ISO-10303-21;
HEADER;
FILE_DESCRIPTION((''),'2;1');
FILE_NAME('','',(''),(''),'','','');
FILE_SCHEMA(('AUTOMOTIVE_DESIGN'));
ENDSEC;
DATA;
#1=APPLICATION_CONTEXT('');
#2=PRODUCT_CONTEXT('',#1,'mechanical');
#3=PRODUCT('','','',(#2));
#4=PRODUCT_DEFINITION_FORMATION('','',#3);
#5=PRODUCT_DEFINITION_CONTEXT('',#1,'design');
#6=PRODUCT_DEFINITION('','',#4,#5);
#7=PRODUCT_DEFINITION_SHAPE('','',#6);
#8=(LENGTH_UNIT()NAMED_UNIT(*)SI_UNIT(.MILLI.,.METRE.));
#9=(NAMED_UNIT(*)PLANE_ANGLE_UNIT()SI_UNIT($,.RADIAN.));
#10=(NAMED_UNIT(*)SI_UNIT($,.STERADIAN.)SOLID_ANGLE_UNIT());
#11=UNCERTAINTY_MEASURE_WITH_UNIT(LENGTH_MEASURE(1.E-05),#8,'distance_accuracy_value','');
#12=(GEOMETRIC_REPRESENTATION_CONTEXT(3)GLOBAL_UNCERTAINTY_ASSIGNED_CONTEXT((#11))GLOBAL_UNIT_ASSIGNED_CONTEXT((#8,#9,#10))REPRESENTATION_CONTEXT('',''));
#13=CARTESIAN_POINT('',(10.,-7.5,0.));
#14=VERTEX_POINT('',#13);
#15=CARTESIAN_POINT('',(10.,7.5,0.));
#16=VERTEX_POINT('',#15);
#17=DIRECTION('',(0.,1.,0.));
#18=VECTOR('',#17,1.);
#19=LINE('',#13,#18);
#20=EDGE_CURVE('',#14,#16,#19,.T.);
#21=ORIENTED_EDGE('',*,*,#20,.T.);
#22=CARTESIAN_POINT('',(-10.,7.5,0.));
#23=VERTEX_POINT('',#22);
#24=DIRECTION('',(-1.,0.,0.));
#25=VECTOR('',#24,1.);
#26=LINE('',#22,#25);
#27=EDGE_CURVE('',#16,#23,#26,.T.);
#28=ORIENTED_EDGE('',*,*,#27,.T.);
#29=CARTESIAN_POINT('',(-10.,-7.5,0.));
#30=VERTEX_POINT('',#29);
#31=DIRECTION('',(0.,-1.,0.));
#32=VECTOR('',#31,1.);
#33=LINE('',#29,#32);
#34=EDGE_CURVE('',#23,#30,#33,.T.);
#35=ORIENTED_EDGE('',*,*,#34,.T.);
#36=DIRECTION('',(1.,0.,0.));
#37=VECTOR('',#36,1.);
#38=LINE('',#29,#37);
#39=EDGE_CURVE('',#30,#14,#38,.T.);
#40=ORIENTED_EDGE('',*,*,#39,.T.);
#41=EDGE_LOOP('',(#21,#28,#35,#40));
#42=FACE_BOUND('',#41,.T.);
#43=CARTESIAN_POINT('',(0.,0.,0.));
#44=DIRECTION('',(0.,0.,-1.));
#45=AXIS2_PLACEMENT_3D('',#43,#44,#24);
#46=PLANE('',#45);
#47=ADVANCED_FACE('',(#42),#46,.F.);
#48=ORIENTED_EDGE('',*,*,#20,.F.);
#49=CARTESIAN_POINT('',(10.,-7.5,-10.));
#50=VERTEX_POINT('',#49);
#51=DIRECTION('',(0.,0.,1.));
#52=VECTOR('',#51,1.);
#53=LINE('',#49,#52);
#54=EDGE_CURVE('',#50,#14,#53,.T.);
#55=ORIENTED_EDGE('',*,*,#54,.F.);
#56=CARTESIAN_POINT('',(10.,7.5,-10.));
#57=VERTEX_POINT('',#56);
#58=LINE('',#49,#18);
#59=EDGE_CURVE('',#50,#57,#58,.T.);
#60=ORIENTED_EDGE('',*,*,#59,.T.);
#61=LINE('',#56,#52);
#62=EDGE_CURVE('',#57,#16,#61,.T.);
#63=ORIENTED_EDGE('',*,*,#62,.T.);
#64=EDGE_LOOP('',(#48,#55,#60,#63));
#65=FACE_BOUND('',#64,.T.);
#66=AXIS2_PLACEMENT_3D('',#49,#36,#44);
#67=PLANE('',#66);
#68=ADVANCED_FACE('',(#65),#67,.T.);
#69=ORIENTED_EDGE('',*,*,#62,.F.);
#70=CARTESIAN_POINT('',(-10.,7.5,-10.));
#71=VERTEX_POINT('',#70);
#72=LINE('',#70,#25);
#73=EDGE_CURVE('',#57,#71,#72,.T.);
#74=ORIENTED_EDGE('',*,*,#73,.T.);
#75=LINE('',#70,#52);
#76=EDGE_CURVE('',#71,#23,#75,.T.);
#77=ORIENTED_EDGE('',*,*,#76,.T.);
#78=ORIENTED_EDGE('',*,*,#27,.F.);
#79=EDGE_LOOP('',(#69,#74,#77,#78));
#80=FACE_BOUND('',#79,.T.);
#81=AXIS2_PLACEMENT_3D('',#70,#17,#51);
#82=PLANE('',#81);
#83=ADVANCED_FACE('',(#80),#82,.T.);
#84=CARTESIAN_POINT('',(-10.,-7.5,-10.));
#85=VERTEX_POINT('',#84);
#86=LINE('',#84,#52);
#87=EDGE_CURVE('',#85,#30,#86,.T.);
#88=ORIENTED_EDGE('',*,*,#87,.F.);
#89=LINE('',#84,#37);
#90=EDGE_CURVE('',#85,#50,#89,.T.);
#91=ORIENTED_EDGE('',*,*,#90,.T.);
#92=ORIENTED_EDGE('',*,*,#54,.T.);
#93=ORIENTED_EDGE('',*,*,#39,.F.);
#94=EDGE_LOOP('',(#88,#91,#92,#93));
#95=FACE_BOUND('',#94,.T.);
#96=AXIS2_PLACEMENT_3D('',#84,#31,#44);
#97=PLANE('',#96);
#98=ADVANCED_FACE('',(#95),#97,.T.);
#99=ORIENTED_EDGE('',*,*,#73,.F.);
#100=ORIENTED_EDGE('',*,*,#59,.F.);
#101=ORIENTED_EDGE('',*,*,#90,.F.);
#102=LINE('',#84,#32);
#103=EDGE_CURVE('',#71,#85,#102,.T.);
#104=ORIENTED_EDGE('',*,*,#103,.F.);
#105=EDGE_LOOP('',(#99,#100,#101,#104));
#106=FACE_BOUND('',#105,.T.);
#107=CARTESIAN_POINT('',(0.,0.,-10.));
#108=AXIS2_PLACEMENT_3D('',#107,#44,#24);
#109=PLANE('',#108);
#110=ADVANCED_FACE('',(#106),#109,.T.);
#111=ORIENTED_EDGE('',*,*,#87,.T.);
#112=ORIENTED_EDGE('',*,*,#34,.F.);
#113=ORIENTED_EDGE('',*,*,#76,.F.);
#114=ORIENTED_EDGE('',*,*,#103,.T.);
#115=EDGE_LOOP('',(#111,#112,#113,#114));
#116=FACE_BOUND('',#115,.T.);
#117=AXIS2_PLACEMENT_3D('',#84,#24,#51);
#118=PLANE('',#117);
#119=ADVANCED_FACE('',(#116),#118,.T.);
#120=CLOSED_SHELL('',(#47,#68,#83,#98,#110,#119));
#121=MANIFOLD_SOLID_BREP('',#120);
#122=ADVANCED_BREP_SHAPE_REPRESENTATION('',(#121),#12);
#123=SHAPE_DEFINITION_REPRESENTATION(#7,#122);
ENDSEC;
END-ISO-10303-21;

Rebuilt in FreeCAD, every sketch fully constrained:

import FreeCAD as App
import Part
import Sketcher

V = App.Vector

doc = App.newDocument("Part")
body = doc.addObject("PartDesign::Body", "Body")

# Sketch on XY plane
sketch1 = body.newObject("Sketcher::SketchObject", "Sketch")
sketch1.AttachmentSupport = (doc.getObject("XY_Plane"), [""])
sketch1.MapMode = "FlatFace"
sketch1.addGeometry(Part.LineSegment(V(-10, 8, 0), V(-10, -8, 0)), False)
sketch1.addGeometry(Part.LineSegment(V(-10, -8, 0), V(10, -8, 0)), False)
sketch1.addGeometry(Part.LineSegment(V(10, -8, 0), V(10, 8, 0)), False)
sketch1.addGeometry(Part.LineSegment(V(10, 8, 0), V(-10, 8, 0)), False)
sketch1.addConstraint(Sketcher.Constraint("Coincident", 0, 2, 1, 1))
sketch1.addConstraint(Sketcher.Constraint("Coincident", 1, 2, 2, 1))
sketch1.addConstraint(Sketcher.Constraint("Coincident", 2, 2, 3, 1))
sketch1.addConstraint(Sketcher.Constraint("Coincident", 3, 2, 0, 1))
sketch1.addConstraint(Sketcher.Constraint("Vertical", 0))
sketch1.addConstraint(Sketcher.Constraint("Horizontal", 1))
sketch1.addConstraint(Sketcher.Constraint("Vertical", 2))
sketch1.addConstraint(Sketcher.Constraint("Horizontal", 3))
sketch1.addConstraint(Sketcher.Constraint("Symmetric", 0, 2, 2, 2, -1, 1))
sketch1.addConstraint(Sketcher.Constraint("DistanceX", 1, 1, 1, 2, 20.0))
sketch1.addConstraint(Sketcher.Constraint("DistanceY", 0, 2, 0, 1, 15.0))
pad1 = body.newObject("PartDesign::Pad", "Pad")
pad1.Profile = sketch1
pad1.Length = 10
pad1.Reversed = True

# Sketch on XY plane
sketch2 = body.newObject("Sketcher::SketchObject", "Sketch001")
sketch2.AttachmentSupport = (doc.getObject("XY_Plane"), [""])
sketch2.MapMode = "FlatFace"
sketch2.addGeometry(Part.LineSegment(V(-6, 4, 0), V(-6, -4, 0)), False)
sketch2.addGeometry(Part.LineSegment(V(-6, -4, 0), V(6, -4, 0)), False)
sketch2.addGeometry(Part.LineSegment(V(6, -4, 0), V(6, 4, 0)), False)
sketch2.addGeometry(Part.LineSegment(V(6, 4, 0), V(-6, 4, 0)), False)
sketch2.addConstraint(Sketcher.Constraint("Coincident", 0, 2, 1, 1))
sketch2.addConstraint(Sketcher.Constraint("Coincident", 1, 2, 2, 1))
sketch2.addConstraint(Sketcher.Constraint("Coincident", 2, 2, 3, 1))
sketch2.addConstraint(Sketcher.Constraint("Coincident", 3, 2, 0, 1))
sketch2.addConstraint(Sketcher.Constraint("Vertical", 0))
sketch2.addConstraint(Sketcher.Constraint("Horizontal", 1))
sketch2.addConstraint(Sketcher.Constraint("Vertical", 2))
sketch2.addConstraint(Sketcher.Constraint("Horizontal", 3))
sketch2.addConstraint(Sketcher.Constraint("Symmetric", 0, 2, 2, 2, -1, 1))
sketch2.addConstraint(Sketcher.Constraint("DistanceX", 1, 1, 1, 2, 13.0))
sketch2.addConstraint(Sketcher.Constraint("DistanceY", 0, 2, 0, 1, 9.0))
pad2 = body.newObject("PartDesign::Pad", "Pad001")
pad2.Profile = sketch2
pad2.Length = 5
pad2.Reversed = True

doc.recompute()
